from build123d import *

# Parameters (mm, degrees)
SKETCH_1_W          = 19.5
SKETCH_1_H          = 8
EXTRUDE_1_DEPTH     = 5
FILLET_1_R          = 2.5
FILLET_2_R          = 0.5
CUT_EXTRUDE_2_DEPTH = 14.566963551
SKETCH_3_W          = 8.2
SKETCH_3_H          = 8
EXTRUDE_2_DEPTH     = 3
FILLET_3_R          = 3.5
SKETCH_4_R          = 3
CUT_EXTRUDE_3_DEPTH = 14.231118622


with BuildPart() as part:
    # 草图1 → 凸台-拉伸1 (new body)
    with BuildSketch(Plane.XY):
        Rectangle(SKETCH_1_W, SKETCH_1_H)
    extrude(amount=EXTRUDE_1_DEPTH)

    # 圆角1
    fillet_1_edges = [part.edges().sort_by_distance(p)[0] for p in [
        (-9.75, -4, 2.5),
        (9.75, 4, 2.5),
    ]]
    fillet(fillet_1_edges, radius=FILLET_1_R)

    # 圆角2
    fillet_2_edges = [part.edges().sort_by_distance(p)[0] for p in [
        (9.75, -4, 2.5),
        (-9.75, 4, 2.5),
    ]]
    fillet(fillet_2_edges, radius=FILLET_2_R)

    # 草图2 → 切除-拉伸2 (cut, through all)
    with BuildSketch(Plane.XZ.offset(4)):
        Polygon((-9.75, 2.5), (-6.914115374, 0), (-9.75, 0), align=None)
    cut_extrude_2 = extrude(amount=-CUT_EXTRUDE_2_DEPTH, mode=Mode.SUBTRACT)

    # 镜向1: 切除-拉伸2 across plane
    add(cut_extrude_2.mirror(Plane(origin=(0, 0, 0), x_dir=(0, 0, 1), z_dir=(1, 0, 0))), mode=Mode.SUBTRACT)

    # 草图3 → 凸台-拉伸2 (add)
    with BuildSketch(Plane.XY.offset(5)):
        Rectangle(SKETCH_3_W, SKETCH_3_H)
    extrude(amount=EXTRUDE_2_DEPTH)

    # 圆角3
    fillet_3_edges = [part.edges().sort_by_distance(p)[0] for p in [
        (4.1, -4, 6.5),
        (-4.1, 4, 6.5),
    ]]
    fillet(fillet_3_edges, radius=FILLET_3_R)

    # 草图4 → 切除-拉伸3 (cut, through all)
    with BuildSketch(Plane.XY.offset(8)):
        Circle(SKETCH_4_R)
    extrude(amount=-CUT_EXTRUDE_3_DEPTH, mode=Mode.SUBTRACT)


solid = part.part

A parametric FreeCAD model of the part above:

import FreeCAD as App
import Part
import Sketcher
from FreeCAD import Vector
Q = App.Units.Quantity


def edges_at(feature, points):
    """Names of the edges that pass closest to the given points."""
    edges = feature.Shape.Edges
    near = lambda p: min(range(len(edges)), key=lambda i: edges[i].distToShape(Part.Vertex(*p))[0])
    return sorted({f"Edge{near(p) + 1}" for p in points})


def add_polygon(sketch, points):
    """Adds a closed chain of lines whose ends are joined by coincident constraints."""
    first, n = sketch.GeometryCount, len(points)
    for a, b in zip(points, points[1:] + points[:1]):
        sketch.addGeometry(Part.LineSegment(App.Vector(*a, 0), App.Vector(*b, 0)), False)
    for i in range(n):
        sketch.addConstraint(Sketcher.Constraint("Coincident", first + i, 2, first + (i + 1) % n, 1))

doc = App.newDocument("Part")
body = doc.addObject("PartDesign::Body", "Body")

sketch1 = body.newObject("Sketcher::SketchObject", "Sketch")
sketch1.AttachmentSupport = (doc.getObject("XY_Plane"), [""])
sketch1.MapMode = "FlatFace"
add_polygon(sketch1, [(-9.75, 4), (-9.75, -4), (9.75, -4), (9.75, 4)])
sketch1.addConstraint([
    Sketcher.Constraint("Vertical", 0),
    Sketcher.Constraint("Horizontal", 1),
    Sketcher.Constraint("Vertical", 2),
    Sketcher.Constraint("Horizontal", 3),
    Sketcher.Constraint("Symmetric", 0, 2, 2, 2, -1, 1),
    Sketcher.Constraint("DistanceY", 0, 2, 0, 1, Q("8 mm")),
    Sketcher.Constraint("DistanceX", 1, 1, 1, 2, Q("19.5 mm")),
])
pad1 = body.newObject("PartDesign::Pad", "Pad")
pad1.Profile = sketch1
pad1.Length = 5
doc.recompute()

fillet = body.newObject("PartDesign::Fillet", "Fillet")
fillet.Base = (pad1, edges_at(pad1, [(-9.75, -4, 2.5), (9.75, 4, 2.5)]))
fillet.Radius = 2.5
doc.recompute()

fillet2 = body.newObject("PartDesign::Fillet", "Fillet001")
fillet2.Base = (fillet, edges_at(fillet, [(9.75, -4, 2.5), (-9.75, 4, 2.5)]))
fillet2.Radius = 0.5

sketch2 = body.newObject("Sketcher::SketchObject", "Sketch001")
sketch2.AttachmentSupport = (doc.getObject("XZ_Plane"), [""])
sketch2.MapMode = "FlatFace"
sketch2.AttachmentOffset = App.Placement(Vector(0, 0, 4), App.Rotation())
add_polygon(sketch2, [(-6.914115, 0), (-9.75, 2.5), (-9.75, 0)])
sketch2.addConstraint([
    Sketcher.Constraint("Vertical", 1),
    Sketcher.Constraint("Horizontal", 2),
    Sketcher.Constraint("PointOnObject", 1, 2, -1),
    Sketcher.Constraint("DistanceY", 1, 2, 1, 1, Q("2.5 mm")),
    Sketcher.Constraint("DistanceX", 0, 2, -1, 1, Q("9.75 mm")),
    Sketcher.Constraint("Distance", 0, Q("3.780508 mm")),
])
pocket1 = body.newObject("PartDesign::Pocket", "Pocket")
pocket1.Profile = sketch2
pocket1.Type = "ThroughAll"
doc.recompute()

mirrored = body.newObject("PartDesign::Mirrored", "Mirrored")
mirrored.Originals = [pocket1]
mirrored.MirrorPlane = (doc.getObject("YZ_Plane"), [""])
body.Tip = mirrored

sketch3 = body.newObject("Sketcher::SketchObject", "Sketch002")
sketch3.AttachmentSupport = (doc.getObject("XY_Plane"), [""])
sketch3.MapMode = "FlatFace"
sketch3.AttachmentOffset = App.Placement(Vector(0, 0, 5), App.Rotation())
add_polygon(sketch3, [(-4.1, 4), (-4.1, -4), (4.1, -4), (4.1, 4)])
sketch3.addConstraint([
    Sketcher.Constraint("Vertical", 0),
    Sketcher.Constraint("Horizontal", 1),
    Sketcher.Constraint("Vertical", 2),
    Sketcher.Constraint("Horizontal", 3),
    Sketcher.Constraint("Symmetric", 0, 2, 2, 2, -1, 1),
    Sketcher.Constraint("DistanceY", 0, 2, 0, 1, Q("8 mm")),
    Sketcher.Constraint("DistanceX", 1, 1, 1, 2, Q("8.2 mm")),
])
pad2 = body.newObject("PartDesign::Pad", "Pad001")
pad2.Profile = sketch3
pad2.Length = 3
doc.recompute()

fillet3 = body.newObject("PartDesign::Fillet", "Fillet002")
fillet3.Base = (pad2, edges_at(pad2, [(4.1, -4, 6.5), (-4.1, 4, 6.5)]))
fillet3.Radius = 3.5

sketch4 = body.newObject("Sketcher::SketchObject", "Sketch003")
sketch4.AttachmentSupport = (doc.getObject("XY_Plane"), [""])
sketch4.MapMode = "FlatFace"
sketch4.AttachmentOffset = App.Placement(Vector(0, 0, 8), App.Rotation())
sketch4.addGeometry(Part.Circle(Vector(0, 0, 0), Vector(0, 0, 1), 3), False)
sketch4.addConstraint([
    Sketcher.Constraint("Coincident", 0, 3, -1, 1),
    Sketcher.Constraint("Diameter", 0, Q("6 mm")),
])
pocket2 = body.newObject("PartDesign::Pocket", "Pocket001")
pocket2.Profile = sketch4
pocket2.Type = "ThroughAll"

doc.recompute()
